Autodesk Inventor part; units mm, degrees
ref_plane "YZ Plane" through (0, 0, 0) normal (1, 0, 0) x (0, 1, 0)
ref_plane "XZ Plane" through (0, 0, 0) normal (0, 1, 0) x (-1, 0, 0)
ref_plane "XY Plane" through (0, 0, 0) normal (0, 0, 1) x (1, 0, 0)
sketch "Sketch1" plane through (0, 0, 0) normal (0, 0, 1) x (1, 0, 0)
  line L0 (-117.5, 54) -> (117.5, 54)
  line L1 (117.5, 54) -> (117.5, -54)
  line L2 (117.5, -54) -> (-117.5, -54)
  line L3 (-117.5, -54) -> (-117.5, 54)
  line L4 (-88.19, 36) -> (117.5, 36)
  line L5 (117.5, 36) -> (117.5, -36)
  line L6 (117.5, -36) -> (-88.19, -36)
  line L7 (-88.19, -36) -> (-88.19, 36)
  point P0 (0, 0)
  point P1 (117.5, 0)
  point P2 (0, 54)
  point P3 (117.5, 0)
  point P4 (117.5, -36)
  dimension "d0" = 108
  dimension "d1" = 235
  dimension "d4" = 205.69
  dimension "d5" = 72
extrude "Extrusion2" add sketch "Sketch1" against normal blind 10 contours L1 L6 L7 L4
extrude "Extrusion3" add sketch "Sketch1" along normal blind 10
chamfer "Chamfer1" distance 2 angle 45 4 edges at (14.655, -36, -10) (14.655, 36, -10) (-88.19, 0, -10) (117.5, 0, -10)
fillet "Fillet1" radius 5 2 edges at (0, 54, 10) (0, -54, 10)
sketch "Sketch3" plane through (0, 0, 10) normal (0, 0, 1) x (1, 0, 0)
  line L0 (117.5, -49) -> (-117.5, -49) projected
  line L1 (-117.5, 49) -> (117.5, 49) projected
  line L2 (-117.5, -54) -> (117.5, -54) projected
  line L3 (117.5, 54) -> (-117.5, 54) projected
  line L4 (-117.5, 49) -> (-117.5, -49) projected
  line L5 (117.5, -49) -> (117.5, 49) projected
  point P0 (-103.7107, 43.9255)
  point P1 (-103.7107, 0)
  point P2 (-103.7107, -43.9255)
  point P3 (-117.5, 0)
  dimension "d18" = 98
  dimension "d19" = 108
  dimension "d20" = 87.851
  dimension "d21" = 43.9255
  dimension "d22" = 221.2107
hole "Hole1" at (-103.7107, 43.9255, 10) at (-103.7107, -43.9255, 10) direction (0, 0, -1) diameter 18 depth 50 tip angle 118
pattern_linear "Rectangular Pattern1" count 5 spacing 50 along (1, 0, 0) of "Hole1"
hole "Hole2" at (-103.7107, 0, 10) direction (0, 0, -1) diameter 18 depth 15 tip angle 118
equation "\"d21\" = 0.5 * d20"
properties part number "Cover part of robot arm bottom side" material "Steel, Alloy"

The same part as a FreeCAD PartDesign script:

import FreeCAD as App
import Part
import Sketcher
Q = App.Units.Quantity


def edges_at(feature, points):
    """Names of the edges that pass closest to the given points."""
    edges = feature.Shape.Edges
    near = lambda p: min(range(len(edges)), key=lambda i: edges[i].distToShape(Part.Vertex(*p))[0])
    return sorted({f"Edge{near(p) + 1}" for p in points})


def add_polygon(sketch, points):
    """Adds a closed chain of lines whose ends are joined by coincident constraints."""
    first, n = sketch.GeometryCount, len(points)
    for a, b in zip(points, points[1:] + points[:1]):
        sketch.addGeometry(Part.LineSegment(App.Vector(*a, 0), App.Vector(*b, 0)), False)
    for i in range(n):
        sketch.addConstraint(Sketcher.Constraint("Coincident", first + i, 2, first + (i + 1) % n, 1))

doc = App.newDocument("Part")
body = doc.addObject("PartDesign::Body", "Body")

# Sketch on XY plane
sketch1 = body.newObject("Sketcher::SketchObject", "Sketch")
sketch1.AttachmentSupport = (doc.getObject("XY_Plane"), [""])
sketch1.MapMode = "FlatFace"
add_polygon(sketch1, [(117.5, -36), (117.5, 36), (-88.19, 36), (-88.19, -36)])  # lines 0-3
sketch1.addConstraint(Sketcher.Constraint("Vertical", 0))
sketch1.addConstraint(Sketcher.Constraint("Horizontal", 1))
sketch1.addConstraint(Sketcher.Constraint("Vertical", 2))
sketch1.addConstraint(Sketcher.Constraint("Horizontal", 3))
sketch1.addConstraint(Sketcher.Constraint("DistanceY", 0, 1, 0, 2, Q("72 mm")))
sketch1.addConstraint(Sketcher.Constraint("DistanceX", 1, 2, 1, 1, Q("205.69 mm")))
sketch1.addConstraint(Sketcher.Constraint("DistanceY", -1, 1, 0, 2, Q("36 mm")))
sketch1.addConstraint(Sketcher.Constraint("DistanceX", -1, 1, 0, 2, Q("117.5 mm")))
pad1 = body.newObject("PartDesign::Pad", "Pad")
pad1.Profile = sketch1
pad1.Length = 10
pad1.Reversed = True

# Sketch on XY plane
sketch2 = body.newObject("Sketcher::SketchObject", "Sketch001")
sketch2.AttachmentSupport = (doc.getObject("XY_Plane"), [""])
sketch2.MapMode = "FlatFace"
add_polygon(sketch2, [(117.5, 54), (-117.5, 54), (-117.5, -54), (117.5, -54)])  # lines 0-3
sketch2.addConstraint(Sketcher.Constraint("Horizontal", 0))
sketch2.addConstraint(Sketcher.Constraint("Vertical", 1))
sketch2.addConstraint(Sketcher.Constraint("Horizontal", 2))
sketch2.addConstraint(Sketcher.Constraint("Vertical", 3))
sketch2.addConstraint(Sketcher.Constraint("Symmetric", 0, 2, 2, 2, -1, 1))
sketch2.addConstraint(Sketcher.Constraint("DistanceX", 0, 2, 0, 1, Q("235 mm")))
sketch2.addConstraint(Sketcher.Constraint("DistanceY", 1, 2, 1, 1, Q("108 mm")))
pad2 = body.newObject("PartDesign::Pad", "Pad001")
pad2.Profile = sketch2
pad2.Length = 10
doc.recompute()

chamfer = body.newObject("PartDesign::Chamfer", "Chamfer")
chamfer.Base = (pad2, edges_at(pad2, [
    (14.655, -36, -10),
    (14.655, 36, -10),
    (-88.19, 0, -10),
    (117.5, 0, -10),
]))
chamfer.Size = 2
doc.recompute()

fillet = body.newObject("PartDesign::Fillet", "Fillet")
fillet.Base = (chamfer, edges_at(chamfer, [(0, 54, 10), (0, -54, 10)]))
fillet.Radius = 5

# Sketch on XY plane
sketch3 = body.newObject("Sketcher::SketchObject", "Sketch002")
sketch3.AttachmentSupport = (doc.getObject("XY_Plane"), [""])
sketch3.MapMode = "FlatFace"
sketch3.AttachmentOffset = App.Placement(App.Vector(0, 0, 10), App.Rotation())
sketch3.addGeometry(Part.Circle(App.Vector(-103.7107, 43.9255, 0), App.Vector(0, 0, 1), 9), False)
sketch3.addGeometry(Part.Circle(App.Vector(-103.7107, -43.9255, 0), App.Vector(0, 0, 1), 9), False)
sketch3.addConstraint(Sketcher.Constraint("Equal", 0, 1))
sketch3.addConstraint(Sketcher.Constraint("Symmetric", 0, 3, 1, 3, -1))
sketch3.addConstraint(Sketcher.Constraint("Diameter", 0, Q("18 mm")))
sketch3.addConstraint(Sketcher.Constraint("DistanceY", 1, 3, 0, 3, Q("87.851 mm")))
sketch3.addConstraint(Sketcher.Constraint("DistanceX", 0, 3, -1, 1, Q("103.7107 mm")))
doc.recompute()
hole = body.newObject("PartDesign::Hole", "Hole")
hole.Profile = sketch3
hole.ThreadType = "None"
hole.Diameter = 18
hole.DepthType = "Dimension"
hole.Depth = 50
hole.DrillPoint = "Angled"
hole.DrillPointAngle = 118
doc.recompute()

linearpattern = body.newObject("PartDesign::LinearPattern", "LinearPattern")
linearpattern.Originals = [hole]
linearpattern.Direction = (doc.getObject("X_Axis"), [""])
linearpattern.Mode = "offset"
linearpattern.Offset = 50
linearpattern.Occurrences = 5
body.Tip = linearpattern

# Sketch on XY plane
sketch4 = body.newObject("Sketcher::SketchObject", "Sketch003")
sketch4.AttachmentSupport = (doc.getObject("XY_Plane"), [""])
sketch4.MapMode = "FlatFace"
sketch4.AttachmentOffset = App.Placement(App.Vector(0, 0, 10), App.Rotation())
sketch4.addGeometry(Part.Circle(App.Vector(-103.7107, 0, 0), App.Vector(0, 0, 1), 9), False)
sketch4.addConstraint(Sketcher.Constraint("PointOnObject", 0, 3, -1))
sketch4.addConstraint(Sketcher.Constraint("Diameter", 0, Q("18 mm")))
sketch4.addConstraint(Sketcher.Constraint("DistanceX", 0, 3, -1, 1, Q("103.7107 mm")))
doc.recompute()
hole2 = body.newObject("PartDesign::Hole", "Hole001")
hole2.Profile = sketch4
hole2.ThreadType = "None"
hole2.Diameter = 18
hole2.DepthType = "Dimension"
hole2.Depth = 15
hole2.DrillPoint = "Angled"
hole2.DrillPointAngle = 118

doc.recompute()
